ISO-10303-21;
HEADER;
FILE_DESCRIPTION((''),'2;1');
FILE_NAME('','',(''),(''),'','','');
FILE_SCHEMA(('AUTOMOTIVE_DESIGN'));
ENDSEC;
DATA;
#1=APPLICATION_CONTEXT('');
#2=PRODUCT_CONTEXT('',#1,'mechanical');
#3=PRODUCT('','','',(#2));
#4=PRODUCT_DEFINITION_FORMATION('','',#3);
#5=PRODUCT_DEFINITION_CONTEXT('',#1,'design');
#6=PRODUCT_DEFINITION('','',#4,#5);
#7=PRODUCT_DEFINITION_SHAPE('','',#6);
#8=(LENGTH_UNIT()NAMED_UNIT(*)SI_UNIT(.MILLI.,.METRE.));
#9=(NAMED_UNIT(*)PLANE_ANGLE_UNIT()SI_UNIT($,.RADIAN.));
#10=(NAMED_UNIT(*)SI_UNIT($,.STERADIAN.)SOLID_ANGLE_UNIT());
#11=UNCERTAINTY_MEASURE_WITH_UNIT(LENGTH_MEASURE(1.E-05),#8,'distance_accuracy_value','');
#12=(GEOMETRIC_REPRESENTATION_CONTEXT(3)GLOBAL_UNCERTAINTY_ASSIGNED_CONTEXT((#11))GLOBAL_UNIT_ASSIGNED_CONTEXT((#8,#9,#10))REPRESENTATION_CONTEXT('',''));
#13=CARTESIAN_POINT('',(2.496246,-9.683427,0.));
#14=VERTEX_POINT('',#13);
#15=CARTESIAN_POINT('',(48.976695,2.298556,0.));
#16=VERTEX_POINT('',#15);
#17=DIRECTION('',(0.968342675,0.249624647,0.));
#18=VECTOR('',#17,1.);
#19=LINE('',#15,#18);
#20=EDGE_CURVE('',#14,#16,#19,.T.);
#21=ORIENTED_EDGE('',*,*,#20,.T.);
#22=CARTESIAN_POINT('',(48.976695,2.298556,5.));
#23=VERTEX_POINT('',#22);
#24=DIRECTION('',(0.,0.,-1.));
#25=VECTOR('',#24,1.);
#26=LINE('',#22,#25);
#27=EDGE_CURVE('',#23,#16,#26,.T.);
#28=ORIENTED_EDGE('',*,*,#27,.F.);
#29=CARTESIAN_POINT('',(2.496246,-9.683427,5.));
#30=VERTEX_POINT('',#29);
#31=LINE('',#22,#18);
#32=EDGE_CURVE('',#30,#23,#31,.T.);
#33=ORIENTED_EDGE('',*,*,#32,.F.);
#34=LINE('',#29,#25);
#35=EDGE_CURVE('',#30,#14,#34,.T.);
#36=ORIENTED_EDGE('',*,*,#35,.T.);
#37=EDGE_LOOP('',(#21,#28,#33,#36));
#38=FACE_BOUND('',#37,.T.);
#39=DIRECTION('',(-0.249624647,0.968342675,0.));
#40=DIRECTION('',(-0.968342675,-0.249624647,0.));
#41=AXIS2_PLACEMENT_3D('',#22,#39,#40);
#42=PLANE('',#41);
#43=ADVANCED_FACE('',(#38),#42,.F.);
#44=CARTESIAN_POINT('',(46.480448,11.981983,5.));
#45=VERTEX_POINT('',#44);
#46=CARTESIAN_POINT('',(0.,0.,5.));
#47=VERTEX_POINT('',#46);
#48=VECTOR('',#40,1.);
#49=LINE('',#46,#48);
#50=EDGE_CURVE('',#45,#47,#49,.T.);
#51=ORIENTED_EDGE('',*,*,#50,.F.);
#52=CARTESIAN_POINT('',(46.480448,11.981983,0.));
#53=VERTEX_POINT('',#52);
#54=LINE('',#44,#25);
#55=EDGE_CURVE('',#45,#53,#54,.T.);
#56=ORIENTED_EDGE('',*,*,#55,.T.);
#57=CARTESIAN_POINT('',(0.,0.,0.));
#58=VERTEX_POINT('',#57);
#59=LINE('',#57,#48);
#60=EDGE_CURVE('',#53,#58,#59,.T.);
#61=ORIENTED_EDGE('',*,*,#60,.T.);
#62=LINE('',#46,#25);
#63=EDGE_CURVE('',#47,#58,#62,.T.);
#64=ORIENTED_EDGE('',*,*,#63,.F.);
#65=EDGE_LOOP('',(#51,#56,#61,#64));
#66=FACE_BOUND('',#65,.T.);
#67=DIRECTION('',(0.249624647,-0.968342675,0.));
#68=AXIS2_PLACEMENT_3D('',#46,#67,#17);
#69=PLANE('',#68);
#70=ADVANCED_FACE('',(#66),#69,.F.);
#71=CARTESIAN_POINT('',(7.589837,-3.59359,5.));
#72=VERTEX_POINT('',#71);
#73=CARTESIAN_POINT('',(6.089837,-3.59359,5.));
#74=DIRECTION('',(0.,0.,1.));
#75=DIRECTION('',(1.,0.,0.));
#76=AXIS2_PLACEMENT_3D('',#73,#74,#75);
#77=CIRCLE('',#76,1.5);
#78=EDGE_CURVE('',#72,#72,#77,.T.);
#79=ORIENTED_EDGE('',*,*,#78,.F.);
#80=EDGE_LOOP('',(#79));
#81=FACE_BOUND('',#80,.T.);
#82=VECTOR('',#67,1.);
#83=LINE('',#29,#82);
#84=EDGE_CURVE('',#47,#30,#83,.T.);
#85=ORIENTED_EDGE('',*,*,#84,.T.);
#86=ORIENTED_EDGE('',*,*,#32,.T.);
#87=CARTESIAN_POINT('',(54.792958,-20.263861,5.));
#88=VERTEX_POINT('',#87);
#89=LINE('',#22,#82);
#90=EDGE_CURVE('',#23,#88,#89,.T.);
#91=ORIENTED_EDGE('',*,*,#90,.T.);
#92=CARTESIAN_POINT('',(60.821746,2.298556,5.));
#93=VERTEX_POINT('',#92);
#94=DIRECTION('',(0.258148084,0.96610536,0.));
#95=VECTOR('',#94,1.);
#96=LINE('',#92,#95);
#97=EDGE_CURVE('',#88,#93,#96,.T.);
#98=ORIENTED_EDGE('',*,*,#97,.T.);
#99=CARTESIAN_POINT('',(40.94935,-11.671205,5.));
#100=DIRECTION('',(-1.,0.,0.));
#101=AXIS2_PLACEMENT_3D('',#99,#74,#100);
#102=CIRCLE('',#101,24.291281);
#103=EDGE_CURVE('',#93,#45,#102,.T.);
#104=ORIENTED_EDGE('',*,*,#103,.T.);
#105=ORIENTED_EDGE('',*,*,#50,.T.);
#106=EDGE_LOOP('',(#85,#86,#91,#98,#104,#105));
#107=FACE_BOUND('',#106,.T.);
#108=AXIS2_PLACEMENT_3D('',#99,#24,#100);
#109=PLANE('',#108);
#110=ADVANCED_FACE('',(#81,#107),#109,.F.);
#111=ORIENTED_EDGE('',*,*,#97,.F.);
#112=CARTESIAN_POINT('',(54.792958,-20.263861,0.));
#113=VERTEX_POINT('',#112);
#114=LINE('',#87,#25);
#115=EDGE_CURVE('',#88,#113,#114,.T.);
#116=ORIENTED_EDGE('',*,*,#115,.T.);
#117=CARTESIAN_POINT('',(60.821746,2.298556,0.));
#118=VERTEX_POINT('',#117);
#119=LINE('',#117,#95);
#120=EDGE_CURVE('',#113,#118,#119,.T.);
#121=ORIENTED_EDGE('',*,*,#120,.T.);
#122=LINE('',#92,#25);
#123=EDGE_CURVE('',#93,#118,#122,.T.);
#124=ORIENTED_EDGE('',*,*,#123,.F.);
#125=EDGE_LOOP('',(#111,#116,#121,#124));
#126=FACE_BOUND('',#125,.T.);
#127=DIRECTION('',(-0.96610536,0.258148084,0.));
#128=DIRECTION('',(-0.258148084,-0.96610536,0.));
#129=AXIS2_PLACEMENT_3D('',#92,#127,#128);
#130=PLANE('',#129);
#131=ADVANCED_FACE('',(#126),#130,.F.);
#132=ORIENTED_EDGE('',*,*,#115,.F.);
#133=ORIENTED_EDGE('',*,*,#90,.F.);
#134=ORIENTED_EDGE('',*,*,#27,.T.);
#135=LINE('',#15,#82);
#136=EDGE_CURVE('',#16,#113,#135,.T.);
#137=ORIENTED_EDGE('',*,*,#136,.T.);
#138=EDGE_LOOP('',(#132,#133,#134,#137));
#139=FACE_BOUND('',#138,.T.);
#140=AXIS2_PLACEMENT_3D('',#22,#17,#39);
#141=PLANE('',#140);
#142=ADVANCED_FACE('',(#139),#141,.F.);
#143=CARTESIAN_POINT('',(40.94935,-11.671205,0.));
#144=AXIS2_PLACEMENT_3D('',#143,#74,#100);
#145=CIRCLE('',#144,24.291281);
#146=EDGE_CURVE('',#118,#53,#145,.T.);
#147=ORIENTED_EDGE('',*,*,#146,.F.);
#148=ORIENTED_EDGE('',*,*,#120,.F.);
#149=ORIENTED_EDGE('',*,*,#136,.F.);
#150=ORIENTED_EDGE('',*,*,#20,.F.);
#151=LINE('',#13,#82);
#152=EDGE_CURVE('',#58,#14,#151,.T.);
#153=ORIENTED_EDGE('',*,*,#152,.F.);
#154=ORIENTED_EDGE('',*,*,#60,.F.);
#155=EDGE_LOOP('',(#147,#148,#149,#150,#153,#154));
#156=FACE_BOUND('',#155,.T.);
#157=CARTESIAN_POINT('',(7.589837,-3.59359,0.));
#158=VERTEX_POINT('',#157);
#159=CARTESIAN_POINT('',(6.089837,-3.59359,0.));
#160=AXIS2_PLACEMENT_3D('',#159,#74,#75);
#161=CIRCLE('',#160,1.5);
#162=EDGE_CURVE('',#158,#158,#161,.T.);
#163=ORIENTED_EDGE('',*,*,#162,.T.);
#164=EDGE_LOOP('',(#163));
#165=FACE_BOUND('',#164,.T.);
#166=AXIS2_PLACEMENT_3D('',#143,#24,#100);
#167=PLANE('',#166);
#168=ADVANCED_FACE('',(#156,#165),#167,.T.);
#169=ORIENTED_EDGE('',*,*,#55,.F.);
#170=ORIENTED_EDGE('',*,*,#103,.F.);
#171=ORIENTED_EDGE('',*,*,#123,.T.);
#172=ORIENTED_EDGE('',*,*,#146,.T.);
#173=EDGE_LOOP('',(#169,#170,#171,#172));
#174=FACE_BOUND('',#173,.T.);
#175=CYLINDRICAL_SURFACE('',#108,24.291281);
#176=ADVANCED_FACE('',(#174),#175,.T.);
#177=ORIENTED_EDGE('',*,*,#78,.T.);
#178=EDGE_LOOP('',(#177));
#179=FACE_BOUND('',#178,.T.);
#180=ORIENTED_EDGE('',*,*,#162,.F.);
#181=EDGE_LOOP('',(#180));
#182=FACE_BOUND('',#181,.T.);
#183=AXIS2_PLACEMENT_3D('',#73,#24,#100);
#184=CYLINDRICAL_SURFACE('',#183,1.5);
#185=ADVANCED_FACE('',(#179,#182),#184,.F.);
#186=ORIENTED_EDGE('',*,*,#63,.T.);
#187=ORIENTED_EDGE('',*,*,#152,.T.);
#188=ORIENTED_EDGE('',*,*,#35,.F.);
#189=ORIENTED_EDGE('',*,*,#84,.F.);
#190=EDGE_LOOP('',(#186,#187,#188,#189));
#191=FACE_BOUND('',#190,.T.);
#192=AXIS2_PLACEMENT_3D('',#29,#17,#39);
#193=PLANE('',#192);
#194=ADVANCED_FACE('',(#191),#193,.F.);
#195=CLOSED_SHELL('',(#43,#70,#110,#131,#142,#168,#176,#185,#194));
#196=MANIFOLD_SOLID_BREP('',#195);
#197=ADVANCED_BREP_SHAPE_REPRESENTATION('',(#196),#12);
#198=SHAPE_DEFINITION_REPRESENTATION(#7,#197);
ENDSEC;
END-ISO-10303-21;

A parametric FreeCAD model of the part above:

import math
import FreeCAD as App
import Part
import Sketcher
Q = App.Units.Quantity

doc = App.newDocument("Part")
body = doc.addObject("PartDesign::Body", "Body")

sketch1 = doc.addObject("Sketcher::SketchObject", "Sketch")
body.addObject(sketch1)
sketch1.AttachmentSupport = (doc.XY_Plane, [""])
sketch1.MapMode = "FlatFace"
sketch1.addGeometry(Part.LineSegment(App.Vector(54.8, -20.3, 0), App.Vector(60.8, 2.3, 0)), False)
sketch1.addGeometry(Part.ArcOfCircle(Part.Circle(App.Vector(40.9, -11.7, 0), App.Vector(0, 0, 1), 24.3), math.radians(35), math.radians(77)), False)
sketch1.addGeometry(Part.LineSegment(App.Vector(46.5, 12, 0), App.Vector(0, 0, 0)), False)
sketch1.addGeometry(Part.LineSegment(App.Vector(0, 0, 0), App.Vector(2.5, -9.7, 0)), False)
sketch1.addGeometry(Part.LineSegment(App.Vector(2.5, -9.7, 0), App.Vector(49, 2.3, 0)), False)
sketch1.addGeometry(Part.LineSegment(App.Vector(49, 2.3, 0), App.Vector(54.8, -20.3, 0)), False)
sketch1.addGeometry(Part.Circle(App.Vector(6.1, -3.6, 0), App.Vector(0, 0, 1), 1.5), False)
sketch1.addConstraint(Sketcher.Constraint("Coincident", 0, 2, 1, 1))
sketch1.addConstraint(Sketcher.Constraint("Coincident", 1, 2, 2, 1))
sketch1.addConstraint(Sketcher.Constraint("Coincident", 2, 2, 3, 1))
sketch1.addConstraint(Sketcher.Constraint("Coincident", 3, 2, 4, 1))
sketch1.addConstraint(Sketcher.Constraint("Coincident", 4, 2, 5, 1))
sketch1.addConstraint(Sketcher.Constraint("Coincident", 5, 2, 0, 1))
sketch1.addConstraint(Sketcher.Constraint("Coincident", 2, 2, -1, 1))
sketch1.addConstraint(Sketcher.Constraint("Perpendicular", 2, 3))
sketch1.addConstraint(Sketcher.Constraint("Perpendicular", 3, 4))
sketch1.addConstraint(Sketcher.Constraint("Perpendicular", 4, 5))
sketch1.addConstraint(Sketcher.Constraint("Horizontal", 0, 2, 4, 2))
sketch1.addConstraint(Sketcher.Constraint("Equal", 2, 4))
sketch1.addConstraint(Sketcher.Constraint("Diameter", 6, Q("3 mm")))
sketch1.addConstraint(Sketcher.Constraint("Distance", 2, Q("48 mm")))
sketch1.addConstraint(Sketcher.Constraint("Distance", 3, Q("10 mm")))
sketch1.addConstraint(Sketcher.Constraint("Radius", 1, Q("24.291281 mm")))
sketch1.addConstraint(Sketcher.Constraint("DistanceX", 1, 3, 1, 2, Q("5.531098 mm")))
sketch1.addConstraint(Sketcher.Constraint("DistanceX", 3, 2, 1, 2, Q("43.984202 mm")))
sketch1.addConstraint(Sketcher.Constraint("DistanceY", 6, 3, -1, 1, Q("3.59359 mm")))
sketch1.addConstraint(Sketcher.Constraint("DistanceY", 5, 2, -1, 1, Q("20.263861 mm")))
sketch1.addConstraint(Sketcher.Constraint("DistanceX", 6, 3, 0, 2, Q("54.73191 mm")))
pad1 = doc.addObject("PartDesign::Pad", "Pad")
body.addObject(pad1)
pad1.Profile = sketch1
pad1.Length = 5

doc.recompute()
